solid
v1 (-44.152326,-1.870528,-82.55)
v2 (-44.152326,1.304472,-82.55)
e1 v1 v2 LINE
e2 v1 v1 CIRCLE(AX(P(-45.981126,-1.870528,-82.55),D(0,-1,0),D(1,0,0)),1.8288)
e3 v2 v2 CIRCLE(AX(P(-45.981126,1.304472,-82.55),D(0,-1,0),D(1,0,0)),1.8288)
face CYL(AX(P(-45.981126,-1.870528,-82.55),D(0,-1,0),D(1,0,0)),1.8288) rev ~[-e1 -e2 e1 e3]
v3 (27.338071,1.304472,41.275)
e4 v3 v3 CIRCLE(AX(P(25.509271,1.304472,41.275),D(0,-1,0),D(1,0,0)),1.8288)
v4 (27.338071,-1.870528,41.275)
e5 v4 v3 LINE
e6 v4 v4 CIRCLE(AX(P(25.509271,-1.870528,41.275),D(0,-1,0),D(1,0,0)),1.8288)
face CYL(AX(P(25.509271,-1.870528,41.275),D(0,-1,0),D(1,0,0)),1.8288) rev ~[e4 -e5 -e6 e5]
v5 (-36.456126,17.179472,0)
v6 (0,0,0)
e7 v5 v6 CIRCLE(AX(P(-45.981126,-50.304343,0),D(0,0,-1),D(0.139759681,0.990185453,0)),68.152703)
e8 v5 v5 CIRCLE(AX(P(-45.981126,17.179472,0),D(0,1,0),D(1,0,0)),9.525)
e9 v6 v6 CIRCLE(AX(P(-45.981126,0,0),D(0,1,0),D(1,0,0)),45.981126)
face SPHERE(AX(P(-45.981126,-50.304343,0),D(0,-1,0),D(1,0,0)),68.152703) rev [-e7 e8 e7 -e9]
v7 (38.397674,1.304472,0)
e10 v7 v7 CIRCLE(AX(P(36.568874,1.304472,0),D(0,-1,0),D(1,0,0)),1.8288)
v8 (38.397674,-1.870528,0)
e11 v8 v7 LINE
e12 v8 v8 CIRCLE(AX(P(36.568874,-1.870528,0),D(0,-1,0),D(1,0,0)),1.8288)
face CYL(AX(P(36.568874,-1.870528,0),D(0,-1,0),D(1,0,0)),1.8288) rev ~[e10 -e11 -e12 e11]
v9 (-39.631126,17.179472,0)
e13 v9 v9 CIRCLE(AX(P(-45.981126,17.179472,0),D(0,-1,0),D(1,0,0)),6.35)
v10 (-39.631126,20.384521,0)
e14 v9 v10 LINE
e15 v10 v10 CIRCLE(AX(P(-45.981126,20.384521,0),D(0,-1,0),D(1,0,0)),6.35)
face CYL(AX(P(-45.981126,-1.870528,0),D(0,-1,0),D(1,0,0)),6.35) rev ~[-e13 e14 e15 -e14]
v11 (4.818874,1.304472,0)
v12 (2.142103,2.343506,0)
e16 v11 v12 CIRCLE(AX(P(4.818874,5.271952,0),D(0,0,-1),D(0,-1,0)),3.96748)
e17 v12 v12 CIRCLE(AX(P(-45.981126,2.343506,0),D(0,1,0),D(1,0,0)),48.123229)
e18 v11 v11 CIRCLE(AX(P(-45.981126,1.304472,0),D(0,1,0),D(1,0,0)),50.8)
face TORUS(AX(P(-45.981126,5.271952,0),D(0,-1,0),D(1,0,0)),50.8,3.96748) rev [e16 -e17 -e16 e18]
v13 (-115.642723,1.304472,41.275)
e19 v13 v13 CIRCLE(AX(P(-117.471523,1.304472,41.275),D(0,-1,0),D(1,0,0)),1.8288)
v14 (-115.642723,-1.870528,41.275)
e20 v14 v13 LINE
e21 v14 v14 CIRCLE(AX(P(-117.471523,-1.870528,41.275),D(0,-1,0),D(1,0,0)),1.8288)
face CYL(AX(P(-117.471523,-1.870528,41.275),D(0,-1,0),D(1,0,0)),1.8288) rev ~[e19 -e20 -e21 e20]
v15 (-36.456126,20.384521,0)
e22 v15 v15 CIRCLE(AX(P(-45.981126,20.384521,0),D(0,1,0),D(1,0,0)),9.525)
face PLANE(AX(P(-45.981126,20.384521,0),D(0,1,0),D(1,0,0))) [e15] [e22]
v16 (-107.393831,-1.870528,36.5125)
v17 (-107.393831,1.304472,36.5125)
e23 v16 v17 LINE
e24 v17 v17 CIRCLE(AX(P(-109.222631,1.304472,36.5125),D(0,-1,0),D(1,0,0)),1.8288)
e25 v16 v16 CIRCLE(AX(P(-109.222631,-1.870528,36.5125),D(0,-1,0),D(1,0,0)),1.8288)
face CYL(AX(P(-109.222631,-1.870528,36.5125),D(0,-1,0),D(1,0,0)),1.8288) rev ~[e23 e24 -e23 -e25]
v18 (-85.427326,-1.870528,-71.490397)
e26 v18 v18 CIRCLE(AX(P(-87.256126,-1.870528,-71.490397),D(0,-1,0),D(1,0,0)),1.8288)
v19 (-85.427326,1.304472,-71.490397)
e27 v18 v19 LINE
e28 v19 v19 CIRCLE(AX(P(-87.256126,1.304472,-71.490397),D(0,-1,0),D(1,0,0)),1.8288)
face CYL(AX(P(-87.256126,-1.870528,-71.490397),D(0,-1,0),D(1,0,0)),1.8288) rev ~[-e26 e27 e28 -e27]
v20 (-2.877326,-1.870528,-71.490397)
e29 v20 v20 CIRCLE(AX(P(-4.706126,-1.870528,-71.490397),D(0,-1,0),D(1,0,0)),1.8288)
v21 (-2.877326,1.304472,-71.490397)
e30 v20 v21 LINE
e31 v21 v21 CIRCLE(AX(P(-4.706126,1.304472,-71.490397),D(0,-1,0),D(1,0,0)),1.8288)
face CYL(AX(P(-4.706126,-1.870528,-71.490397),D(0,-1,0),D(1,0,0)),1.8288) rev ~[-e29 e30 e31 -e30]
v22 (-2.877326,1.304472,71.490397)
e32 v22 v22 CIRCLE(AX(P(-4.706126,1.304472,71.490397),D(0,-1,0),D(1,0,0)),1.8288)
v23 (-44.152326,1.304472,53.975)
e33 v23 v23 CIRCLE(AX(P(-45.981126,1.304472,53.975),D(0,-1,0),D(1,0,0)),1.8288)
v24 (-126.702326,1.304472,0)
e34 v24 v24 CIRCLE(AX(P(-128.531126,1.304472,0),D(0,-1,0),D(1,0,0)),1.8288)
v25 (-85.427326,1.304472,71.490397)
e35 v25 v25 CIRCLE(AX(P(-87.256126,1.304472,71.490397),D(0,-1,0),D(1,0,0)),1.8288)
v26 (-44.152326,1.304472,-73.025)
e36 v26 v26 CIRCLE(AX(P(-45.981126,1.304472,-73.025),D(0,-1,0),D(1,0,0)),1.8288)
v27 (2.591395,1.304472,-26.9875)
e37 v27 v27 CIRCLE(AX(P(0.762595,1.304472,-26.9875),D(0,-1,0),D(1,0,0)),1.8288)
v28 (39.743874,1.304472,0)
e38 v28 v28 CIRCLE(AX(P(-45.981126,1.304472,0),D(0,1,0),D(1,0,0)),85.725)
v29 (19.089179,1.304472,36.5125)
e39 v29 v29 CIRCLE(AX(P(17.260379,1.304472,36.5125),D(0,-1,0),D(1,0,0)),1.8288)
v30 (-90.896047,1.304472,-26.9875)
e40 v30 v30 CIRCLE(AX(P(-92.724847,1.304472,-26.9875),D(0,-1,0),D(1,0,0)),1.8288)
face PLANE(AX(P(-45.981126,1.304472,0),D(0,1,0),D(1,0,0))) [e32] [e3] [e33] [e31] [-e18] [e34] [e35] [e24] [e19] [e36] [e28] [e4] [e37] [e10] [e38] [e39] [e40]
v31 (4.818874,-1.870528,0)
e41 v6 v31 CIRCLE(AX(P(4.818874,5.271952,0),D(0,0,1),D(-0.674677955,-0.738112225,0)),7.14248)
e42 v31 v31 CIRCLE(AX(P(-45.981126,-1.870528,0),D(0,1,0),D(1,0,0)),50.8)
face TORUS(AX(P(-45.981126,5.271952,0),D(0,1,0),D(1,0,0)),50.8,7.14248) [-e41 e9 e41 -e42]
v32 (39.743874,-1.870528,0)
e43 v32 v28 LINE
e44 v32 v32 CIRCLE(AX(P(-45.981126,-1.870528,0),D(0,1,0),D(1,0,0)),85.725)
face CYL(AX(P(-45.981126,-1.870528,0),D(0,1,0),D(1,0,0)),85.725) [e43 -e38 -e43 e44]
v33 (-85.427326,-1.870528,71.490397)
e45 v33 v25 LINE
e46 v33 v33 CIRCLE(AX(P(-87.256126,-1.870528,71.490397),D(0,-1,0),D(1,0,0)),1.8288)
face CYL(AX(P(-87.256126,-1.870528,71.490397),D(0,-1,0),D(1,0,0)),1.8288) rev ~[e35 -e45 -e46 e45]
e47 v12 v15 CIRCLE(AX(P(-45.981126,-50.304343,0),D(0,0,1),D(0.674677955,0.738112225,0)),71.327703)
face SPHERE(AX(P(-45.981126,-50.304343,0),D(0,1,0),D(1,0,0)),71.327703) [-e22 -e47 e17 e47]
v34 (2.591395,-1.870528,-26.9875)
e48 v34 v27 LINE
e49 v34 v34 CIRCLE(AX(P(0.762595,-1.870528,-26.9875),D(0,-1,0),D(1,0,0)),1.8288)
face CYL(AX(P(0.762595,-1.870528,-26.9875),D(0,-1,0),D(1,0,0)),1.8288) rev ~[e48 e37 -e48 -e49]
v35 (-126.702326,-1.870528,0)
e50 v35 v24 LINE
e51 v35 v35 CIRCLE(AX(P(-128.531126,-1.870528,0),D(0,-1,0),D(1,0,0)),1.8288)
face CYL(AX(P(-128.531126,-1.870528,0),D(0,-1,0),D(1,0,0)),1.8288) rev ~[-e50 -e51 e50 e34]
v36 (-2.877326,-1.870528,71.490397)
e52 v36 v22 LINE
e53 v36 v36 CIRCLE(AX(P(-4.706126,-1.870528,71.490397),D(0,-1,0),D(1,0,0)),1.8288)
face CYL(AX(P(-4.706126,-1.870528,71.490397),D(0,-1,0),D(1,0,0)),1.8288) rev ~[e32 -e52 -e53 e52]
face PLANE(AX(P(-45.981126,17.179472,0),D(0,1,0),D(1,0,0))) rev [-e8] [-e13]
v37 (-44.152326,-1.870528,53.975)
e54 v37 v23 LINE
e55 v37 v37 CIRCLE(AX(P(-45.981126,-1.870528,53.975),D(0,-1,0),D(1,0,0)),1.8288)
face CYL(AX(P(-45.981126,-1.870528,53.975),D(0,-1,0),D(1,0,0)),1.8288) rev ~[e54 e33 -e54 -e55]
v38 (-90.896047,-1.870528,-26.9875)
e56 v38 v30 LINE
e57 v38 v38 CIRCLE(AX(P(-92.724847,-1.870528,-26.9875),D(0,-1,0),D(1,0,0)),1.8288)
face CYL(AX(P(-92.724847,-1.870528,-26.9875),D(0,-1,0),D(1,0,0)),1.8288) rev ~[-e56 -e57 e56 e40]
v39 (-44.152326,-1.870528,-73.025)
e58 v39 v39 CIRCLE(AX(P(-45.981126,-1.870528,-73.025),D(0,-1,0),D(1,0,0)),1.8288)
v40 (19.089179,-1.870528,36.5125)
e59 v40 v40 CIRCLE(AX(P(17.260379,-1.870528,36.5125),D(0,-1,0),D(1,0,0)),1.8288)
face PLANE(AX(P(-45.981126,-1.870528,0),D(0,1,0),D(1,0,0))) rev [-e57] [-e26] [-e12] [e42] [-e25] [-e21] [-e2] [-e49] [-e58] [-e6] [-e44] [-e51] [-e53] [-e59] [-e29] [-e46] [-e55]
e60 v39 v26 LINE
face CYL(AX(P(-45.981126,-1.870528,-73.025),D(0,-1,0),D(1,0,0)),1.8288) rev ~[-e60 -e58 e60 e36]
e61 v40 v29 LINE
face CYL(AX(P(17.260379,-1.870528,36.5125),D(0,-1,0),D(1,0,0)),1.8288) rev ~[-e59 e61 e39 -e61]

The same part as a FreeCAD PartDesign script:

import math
import FreeCAD as App
import Part
import Sketcher
Q = App.Units.Quantity

doc = App.newDocument("Part")
params = doc.addObject("Spreadsheet::Sheet", "Params")
for row, (alias, value) in enumerate([
    ("sketch1_width", "1.375 in"),
    ("sketch1_width2", "0.375 in"),
    ("revolution_angle", "360 deg"),
    ("sketch2_diameter", "0.144 in"),
    ("sketch3_diameter", "0.5 in"),
    ("sketch3_diameter2", "0.144 in"),
], start=1):
    params.set(f"A{row}", alias)
    params.set(f"B{row}", "=" + value)
    params.setAlias(f"B{row}", alias)

body = doc.addObject("PartDesign::Body", "Body")

# Sketch on XY plane
sketch1 = doc.addObject("Sketcher::SketchObject", "Sketch")
body.addObject(sketch1)
sketch1.AttachmentSupport = (doc.XY_Plane, [""])
sketch1.MapMode = "FlatFace"
sketch1.addGeometry(Part.ArcOfCircle(Part.Circle(App.Vector(-46, -50.3, 0), App.Vector(0, 0, 1), 68.2), math.radians(48), math.radians(82)), False)
sketch1.addGeometry(Part.ArcOfCircle(Part.Circle(App.Vector(4.8, 5.3, 0), App.Vector(0, 0, 1), 7.1), math.radians(-132), math.radians(-90)), False)
sketch1.addGeometry(Part.LineSegment(App.Vector(4.8, -1.9, 0), App.Vector(39.7, -1.9, 0)), False)
sketch1.addGeometry(Part.LineSegment(App.Vector(39.7, -1.9, 0), App.Vector(39.7, 1.3, 0)), False)
sketch1.addGeometry(Part.LineSegment(App.Vector(39.7, 1.3, 0), App.Vector(4.8, 1.3, 0)), False)
sketch1.addGeometry(Part.ArcOfCircle(Part.Circle(App.Vector(4.8, 5.3, 0), App.Vector(0, 0, 1), 4), math.radians(-132), math.radians(-90)), False)
sketch1.addGeometry(Part.ArcOfCircle(Part.Circle(App.Vector(-46, -50.3, 0), App.Vector(0, 0, 1), 71.3), math.radians(48), math.radians(82)), False)
sketch1.addGeometry(Part.LineSegment(App.Vector(-36.5, 20.4, 0), App.Vector(-46, 20.4, 0)), False)
sketch1.addGeometry(Part.LineSegment(App.Vector(-46, 20.4, 0), App.Vector(-46, 17.2, 0)), False)
sketch1.addGeometry(Part.LineSegment(App.Vector(-46, 17.2, 0), App.Vector(-36.5, 17.2, 0)), False)
sketch1.addGeometry(Part.LineSegment(App.Vector(-46, -50.3, 0), App.Vector(-46, 20.4, 0)), True)  # axis
sketch1.addConstraint(Sketcher.Constraint("Tangent", 0, 1, 1, 1))
sketch1.addConstraint(Sketcher.Constraint("Tangent", 1, 2, 2, 1))
sketch1.addConstraint(Sketcher.Constraint("Coincident", 2, 2, 3, 1))
sketch1.addConstraint(Sketcher.Constraint("Coincident", 3, 2, 4, 1))
sketch1.addConstraint(Sketcher.Constraint("Tangent", 4, 2, 5, 2))
sketch1.addConstraint(Sketcher.Constraint("Tangent", 5, 1, 6, 1))
sketch1.addConstraint(Sketcher.Constraint("Coincident", 6, 2, 7, 1))
sketch1.addConstraint(Sketcher.Constraint("Coincident", 7, 2, 8, 1))
sketch1.addConstraint(Sketcher.Constraint("Coincident", 8, 2, 9, 1))
sketch1.addConstraint(Sketcher.Constraint("Coincident", 9, 2, 0, 2))
sketch1.addConstraint(Sketcher.Constraint("Horizontal", 2))
sketch1.addConstraint(Sketcher.Constraint("Vertical", 3))
sketch1.addConstraint(Sketcher.Constraint("Horizontal", 4))
sketch1.addConstraint(Sketcher.Constraint("Horizontal", 7))
sketch1.addConstraint(Sketcher.Constraint("Vertical", 8))
sketch1.addConstraint(Sketcher.Constraint("Horizontal", 9))
sketch1.addConstraint(Sketcher.Constraint("Vertical", 10))
sketch1.addConstraint(Sketcher.Constraint("Coincident", 0, 1, -1, 1))
sketch1.addConstraint(Sketcher.Constraint("Coincident", 5, 3, 1, 3))
sketch1.addConstraint(Sketcher.Constraint("Coincident", 6, 3, 0, 3))
sketch1.addConstraint(Sketcher.Constraint("Coincident", 10, 1, 0, 3))
sketch1.addConstraint(Sketcher.Constraint("Coincident", 10, 2, 7, 2))
sketch1.addConstraint(Sketcher.Constraint("Vertical", 6, 2, 9, 2))
sketch1.addConstraint(Sketcher.Constraint("DistanceX", 0, 3, 1, 3, Q("2 in")))
sketch1.addConstraint(Sketcher.Constraint("Radius", 1, Q("0.2812 in")))
sketch1.addConstraint(Sketcher.Constraint("Radius", 5, Q("0.1562 in")))
sketch1.addConstraint(Sketcher.Constraint("DistanceX", 2, 1, 2, 2, Q("1.375 in")))
sketch1.addConstraint(Sketcher.Constraint("DistanceX", 7, 2, 7, 1, Q("0.375 in")))
sketch1.addConstraint(Sketcher.Constraint("Radius", 0, Q("68.152703 mm")))
sketch1.setExpression("Constraints[26]", "Params.sketch1_width")
sketch1.setExpression("Constraints[27]", "Params.sketch1_width2")
revolution = doc.addObject("PartDesign::Revolution", "Revolution")
body.addObject(revolution)
revolution.Profile = sketch1
revolution.ReferenceAxis = (sketch1, ["Axis0"])
revolution.setExpression("Angle", "Params.revolution_angle")

# Sketch on XZ plane
sketch2 = doc.addObject("Sketcher::SketchObject", "Sketch001")
body.addObject(sketch2)
sketch2.AttachmentSupport = (doc.XZ_Plane, [""])
sketch2.MapMode = "FlatFace"
sketch2.AttachmentOffset = App.Placement(App.Vector(0, 0, 1.870528), App.Rotation())
sketch2.addGeometry(Part.Circle(App.Vector(-87.3, 71.5, 0), App.Vector(0, 0, 1), 1.8), False)
sketch2.addGeometry(Part.Circle(App.Vector(-4.7, 71.5, 0), App.Vector(0, 0, 1), 1.8), False)
sketch2.addGeometry(Part.Circle(App.Vector(36.6, 0, 0), App.Vector(0, 0, 1), 1.8), False)
sketch2.addGeometry(Part.Circle(App.Vector(-4.7, -71.5, 0), App.Vector(0, 0, 1), 1.8), False)
sketch2.addGeometry(Part.Circle(App.Vector(-87.3, -71.5, 0), App.Vector(0, 0, 1), 1.8), False)
sketch2.addGeometry(Part.Circle(App.Vector(-128.5, 0, 0), App.Vector(0, 0, 1), 1.8), False)
sketch2.addGeometry(Part.Circle(App.Vector(-117.5, 41.3, 0), App.Vector(0, 0, 1), 1.8), False)
sketch2.addGeometry(Part.Circle(App.Vector(25.5, 41.3, 0), App.Vector(0, 0, 1), 1.8), False)
sketch2.addGeometry(Part.Circle(App.Vector(-46, -82.5, 0), App.Vector(0, 0, 1), 1.8), False)
sketch2.addConstraint(Sketcher.Constraint("Equal", 0, 1))
sketch2.addConstraint(Sketcher.Constraint("Equal", 1, 2))
sketch2.addConstraint(Sketcher.Constraint("Equal", 2, 3))
sketch2.addConstraint(Sketcher.Constraint("Equal", 3, 4))
sketch2.addConstraint(Sketcher.Constraint("Equal", 4, 5))
sketch2.addConstraint(Sketcher.Constraint("Equal", 5, 6))
sketch2.addConstraint(Sketcher.Constraint("Equal", 6, 7))
sketch2.addConstraint(Sketcher.Constraint("Equal", 7, 8))
sketch2.addConstraint(Sketcher.Constraint("Symmetric", 1, 3, 3, 3, -1))
sketch2.addConstraint(Sketcher.Constraint("Symmetric", 0, 3, 4, 3, -1))
sketch2.addConstraint(Sketcher.Constraint("PointOnObject", 2, 3, -1))
sketch2.addConstraint(Sketcher.Constraint("PointOnObject", 5, 3, -1))
sketch2.addConstraint(Sketcher.Constraint("Horizontal", 0, 3, 1, 3))
sketch2.addConstraint(Sketcher.Constraint("Horizontal", 6, 3, 7, 3))
sketch2.addConstraint(Sketcher.Constraint("Diameter", 0, Q("0.144 in")))
sketch2.addConstraint(Sketcher.Constraint("DistanceX", 5, 3, 2, 3, Q("6.5 in")))
sketch2.addConstraint(Sketcher.Constraint("DistanceY", 8, 3, -1, 1, Q("3.25 in")))
sketch2.addConstraint(Sketcher.Constraint("DistanceX", 0, 3, 1, 3, Q("3.25 in")))
sketch2.addConstraint(Sketcher.Constraint("DistanceX", 5, 3, 8, 3, Q("3.25 in")))
sketch2.addConstraint(Sketcher.Constraint("DistanceY", -1, 1, 6, 3, Q("1.625 in")))
sketch2.addConstraint(Sketcher.Constraint("DistanceX", 1, 3, 2, 3, Q("1.625 in")))
sketch2.addConstraint(Sketcher.Constraint("DistanceX", -1, 1, 7, 3, Q("25.509271 mm")))
sketch2.addConstraint(Sketcher.Constraint("DistanceX", 0, 3, -1, 1, Q("87.256126 mm")))
sketch2.addConstraint(Sketcher.Constraint("DistanceY", -1, 1, 0, 3, Q("71.490397 mm")))
sketch2.addConstraint(Sketcher.Constraint("DistanceX", 6, 3, -1, 1, Q("117.471523 mm")))
sketch2.setExpression("Constraints[14]", "Params.sketch2_diameter")
pocket1 = doc.addObject("PartDesign::Pocket", "Pocket")
body.addObject(pocket1)
pocket1.Profile = sketch2
pocket1.Type = "ThroughAll"

# Sketch on XZ plane
sketch3 = doc.addObject("Sketcher::SketchObject", "Sketch002")
body.addObject(sketch3)
sketch3.AttachmentSupport = (doc.XZ_Plane, [""])
sketch3.MapMode = "FlatFace"
sketch3.AttachmentOffset = App.Placement(App.Vector(0, 0, 1.870528), App.Rotation())
sketch3.addGeometry(Part.Circle(App.Vector(-109.2, 36.5, 0), App.Vector(0, 0, 1), 1.8), False)
sketch3.addGeometry(Part.Circle(App.Vector(17.3, 36.5, 0), App.Vector(0, 0, 1), 1.8), False)
sketch3.addGeometry(Part.Circle(App.Vector(-46, -73, 0), App.Vector(0, 0, 1), 1.8), False)
sketch3.addGeometry(Part.Circle(App.Vector(-46, 0, 0), App.Vector(0, 0, 1), 6.3), False)
sketch3.addGeometry(Part.Circle(App.Vector(-46, 54, 0), App.Vector(0, 0, 1), 1.8), False)
sketch3.addGeometry(Part.Circle(App.Vector(-92.7, -27, 0), App.Vector(0, 0, 1), 1.8), False)
sketch3.addGeometry(Part.Circle(App.Vector(0.8, -27, 0), App.Vector(0, 0, 1), 1.8), False)
sketch3.addConstraint(Sketcher.Constraint("Equal", 0, 1))
sketch3.addConstraint(Sketcher.Constraint("Equal", 1, 2))
sketch3.addConstraint(Sketcher.Constraint("Equal", 2, 4))
sketch3.addConstraint(Sketcher.Constraint("Equal", 4, 5))
sketch3.addConstraint(Sketcher.Constraint("Equal", 5, 6))
sketch3.addConstraint(Sketcher.Constraint("PointOnObject", 3, 3, -1))
sketch3.addConstraint(Sketcher.Constraint("Horizontal", 0, 3, 1, 3))
sketch3.addConstraint(Sketcher.Constraint("Horizontal", 5, 3, 6, 3))
sketch3.addConstraint(Sketcher.Constraint("Vertical", 2, 3, 3, 3))
sketch3.addConstraint(Sketcher.Constraint("Vertical", 3, 3, 4, 3))
sketch3.addConstraint(Sketcher.Constraint("Diameter", 3, Q("0.5 in")))
sketch3.addConstraint(Sketcher.Constraint("Diameter", 0, Q("0.144 in")))
sketch3.addConstraint(Sketcher.Constraint("DistanceY", 2, 3, 4, 3, Q("5 in")))
sketch3.addConstraint(Sketcher.Constraint("DistanceY", 5, 3, 0, 3, Q("2.5 in")))
sketch3.addConstraint(Sketcher.Constraint("DistanceY", -1, 1, 0, 3, Q("1.4375 in")))
sketch3.addConstraint(Sketcher.Constraint("DistanceY", 2, 3, -1, 1, Q("2.875 in")))
sketch3.addConstraint(Sketcher.Constraint("DistanceX", 0, 3, -1, 1, Q("109.222631 mm")))
sketch3.addConstraint(Sketcher.Constraint("DistanceX", -1, 1, 1, 3, Q("17.260379 mm")))
sketch3.addConstraint(Sketcher.Constraint("DistanceX", 5, 3, 3, 3, Q("46.743721 mm")))
sketch3.addConstraint(Sketcher.Constraint("DistanceX", 3, 3, 6, 3, Q("46.743721 mm")))
sketch3.addConstraint(Sketcher.Constraint("DistanceX", 2, 3, -1, 1, Q("45.981126 mm")))
sketch3.setExpression("Constraints[10]", "Params.sketch3_diameter")
sketch3.setExpression("Constraints[11]", "Params.sketch3_diameter2")
pocket2 = doc.addObject("PartDesign::Pocket", "Pocket001")
body.addObject(pocket2)
pocket2.Profile = sketch3
pocket2.Type = "ThroughAll"

doc.recompute()
